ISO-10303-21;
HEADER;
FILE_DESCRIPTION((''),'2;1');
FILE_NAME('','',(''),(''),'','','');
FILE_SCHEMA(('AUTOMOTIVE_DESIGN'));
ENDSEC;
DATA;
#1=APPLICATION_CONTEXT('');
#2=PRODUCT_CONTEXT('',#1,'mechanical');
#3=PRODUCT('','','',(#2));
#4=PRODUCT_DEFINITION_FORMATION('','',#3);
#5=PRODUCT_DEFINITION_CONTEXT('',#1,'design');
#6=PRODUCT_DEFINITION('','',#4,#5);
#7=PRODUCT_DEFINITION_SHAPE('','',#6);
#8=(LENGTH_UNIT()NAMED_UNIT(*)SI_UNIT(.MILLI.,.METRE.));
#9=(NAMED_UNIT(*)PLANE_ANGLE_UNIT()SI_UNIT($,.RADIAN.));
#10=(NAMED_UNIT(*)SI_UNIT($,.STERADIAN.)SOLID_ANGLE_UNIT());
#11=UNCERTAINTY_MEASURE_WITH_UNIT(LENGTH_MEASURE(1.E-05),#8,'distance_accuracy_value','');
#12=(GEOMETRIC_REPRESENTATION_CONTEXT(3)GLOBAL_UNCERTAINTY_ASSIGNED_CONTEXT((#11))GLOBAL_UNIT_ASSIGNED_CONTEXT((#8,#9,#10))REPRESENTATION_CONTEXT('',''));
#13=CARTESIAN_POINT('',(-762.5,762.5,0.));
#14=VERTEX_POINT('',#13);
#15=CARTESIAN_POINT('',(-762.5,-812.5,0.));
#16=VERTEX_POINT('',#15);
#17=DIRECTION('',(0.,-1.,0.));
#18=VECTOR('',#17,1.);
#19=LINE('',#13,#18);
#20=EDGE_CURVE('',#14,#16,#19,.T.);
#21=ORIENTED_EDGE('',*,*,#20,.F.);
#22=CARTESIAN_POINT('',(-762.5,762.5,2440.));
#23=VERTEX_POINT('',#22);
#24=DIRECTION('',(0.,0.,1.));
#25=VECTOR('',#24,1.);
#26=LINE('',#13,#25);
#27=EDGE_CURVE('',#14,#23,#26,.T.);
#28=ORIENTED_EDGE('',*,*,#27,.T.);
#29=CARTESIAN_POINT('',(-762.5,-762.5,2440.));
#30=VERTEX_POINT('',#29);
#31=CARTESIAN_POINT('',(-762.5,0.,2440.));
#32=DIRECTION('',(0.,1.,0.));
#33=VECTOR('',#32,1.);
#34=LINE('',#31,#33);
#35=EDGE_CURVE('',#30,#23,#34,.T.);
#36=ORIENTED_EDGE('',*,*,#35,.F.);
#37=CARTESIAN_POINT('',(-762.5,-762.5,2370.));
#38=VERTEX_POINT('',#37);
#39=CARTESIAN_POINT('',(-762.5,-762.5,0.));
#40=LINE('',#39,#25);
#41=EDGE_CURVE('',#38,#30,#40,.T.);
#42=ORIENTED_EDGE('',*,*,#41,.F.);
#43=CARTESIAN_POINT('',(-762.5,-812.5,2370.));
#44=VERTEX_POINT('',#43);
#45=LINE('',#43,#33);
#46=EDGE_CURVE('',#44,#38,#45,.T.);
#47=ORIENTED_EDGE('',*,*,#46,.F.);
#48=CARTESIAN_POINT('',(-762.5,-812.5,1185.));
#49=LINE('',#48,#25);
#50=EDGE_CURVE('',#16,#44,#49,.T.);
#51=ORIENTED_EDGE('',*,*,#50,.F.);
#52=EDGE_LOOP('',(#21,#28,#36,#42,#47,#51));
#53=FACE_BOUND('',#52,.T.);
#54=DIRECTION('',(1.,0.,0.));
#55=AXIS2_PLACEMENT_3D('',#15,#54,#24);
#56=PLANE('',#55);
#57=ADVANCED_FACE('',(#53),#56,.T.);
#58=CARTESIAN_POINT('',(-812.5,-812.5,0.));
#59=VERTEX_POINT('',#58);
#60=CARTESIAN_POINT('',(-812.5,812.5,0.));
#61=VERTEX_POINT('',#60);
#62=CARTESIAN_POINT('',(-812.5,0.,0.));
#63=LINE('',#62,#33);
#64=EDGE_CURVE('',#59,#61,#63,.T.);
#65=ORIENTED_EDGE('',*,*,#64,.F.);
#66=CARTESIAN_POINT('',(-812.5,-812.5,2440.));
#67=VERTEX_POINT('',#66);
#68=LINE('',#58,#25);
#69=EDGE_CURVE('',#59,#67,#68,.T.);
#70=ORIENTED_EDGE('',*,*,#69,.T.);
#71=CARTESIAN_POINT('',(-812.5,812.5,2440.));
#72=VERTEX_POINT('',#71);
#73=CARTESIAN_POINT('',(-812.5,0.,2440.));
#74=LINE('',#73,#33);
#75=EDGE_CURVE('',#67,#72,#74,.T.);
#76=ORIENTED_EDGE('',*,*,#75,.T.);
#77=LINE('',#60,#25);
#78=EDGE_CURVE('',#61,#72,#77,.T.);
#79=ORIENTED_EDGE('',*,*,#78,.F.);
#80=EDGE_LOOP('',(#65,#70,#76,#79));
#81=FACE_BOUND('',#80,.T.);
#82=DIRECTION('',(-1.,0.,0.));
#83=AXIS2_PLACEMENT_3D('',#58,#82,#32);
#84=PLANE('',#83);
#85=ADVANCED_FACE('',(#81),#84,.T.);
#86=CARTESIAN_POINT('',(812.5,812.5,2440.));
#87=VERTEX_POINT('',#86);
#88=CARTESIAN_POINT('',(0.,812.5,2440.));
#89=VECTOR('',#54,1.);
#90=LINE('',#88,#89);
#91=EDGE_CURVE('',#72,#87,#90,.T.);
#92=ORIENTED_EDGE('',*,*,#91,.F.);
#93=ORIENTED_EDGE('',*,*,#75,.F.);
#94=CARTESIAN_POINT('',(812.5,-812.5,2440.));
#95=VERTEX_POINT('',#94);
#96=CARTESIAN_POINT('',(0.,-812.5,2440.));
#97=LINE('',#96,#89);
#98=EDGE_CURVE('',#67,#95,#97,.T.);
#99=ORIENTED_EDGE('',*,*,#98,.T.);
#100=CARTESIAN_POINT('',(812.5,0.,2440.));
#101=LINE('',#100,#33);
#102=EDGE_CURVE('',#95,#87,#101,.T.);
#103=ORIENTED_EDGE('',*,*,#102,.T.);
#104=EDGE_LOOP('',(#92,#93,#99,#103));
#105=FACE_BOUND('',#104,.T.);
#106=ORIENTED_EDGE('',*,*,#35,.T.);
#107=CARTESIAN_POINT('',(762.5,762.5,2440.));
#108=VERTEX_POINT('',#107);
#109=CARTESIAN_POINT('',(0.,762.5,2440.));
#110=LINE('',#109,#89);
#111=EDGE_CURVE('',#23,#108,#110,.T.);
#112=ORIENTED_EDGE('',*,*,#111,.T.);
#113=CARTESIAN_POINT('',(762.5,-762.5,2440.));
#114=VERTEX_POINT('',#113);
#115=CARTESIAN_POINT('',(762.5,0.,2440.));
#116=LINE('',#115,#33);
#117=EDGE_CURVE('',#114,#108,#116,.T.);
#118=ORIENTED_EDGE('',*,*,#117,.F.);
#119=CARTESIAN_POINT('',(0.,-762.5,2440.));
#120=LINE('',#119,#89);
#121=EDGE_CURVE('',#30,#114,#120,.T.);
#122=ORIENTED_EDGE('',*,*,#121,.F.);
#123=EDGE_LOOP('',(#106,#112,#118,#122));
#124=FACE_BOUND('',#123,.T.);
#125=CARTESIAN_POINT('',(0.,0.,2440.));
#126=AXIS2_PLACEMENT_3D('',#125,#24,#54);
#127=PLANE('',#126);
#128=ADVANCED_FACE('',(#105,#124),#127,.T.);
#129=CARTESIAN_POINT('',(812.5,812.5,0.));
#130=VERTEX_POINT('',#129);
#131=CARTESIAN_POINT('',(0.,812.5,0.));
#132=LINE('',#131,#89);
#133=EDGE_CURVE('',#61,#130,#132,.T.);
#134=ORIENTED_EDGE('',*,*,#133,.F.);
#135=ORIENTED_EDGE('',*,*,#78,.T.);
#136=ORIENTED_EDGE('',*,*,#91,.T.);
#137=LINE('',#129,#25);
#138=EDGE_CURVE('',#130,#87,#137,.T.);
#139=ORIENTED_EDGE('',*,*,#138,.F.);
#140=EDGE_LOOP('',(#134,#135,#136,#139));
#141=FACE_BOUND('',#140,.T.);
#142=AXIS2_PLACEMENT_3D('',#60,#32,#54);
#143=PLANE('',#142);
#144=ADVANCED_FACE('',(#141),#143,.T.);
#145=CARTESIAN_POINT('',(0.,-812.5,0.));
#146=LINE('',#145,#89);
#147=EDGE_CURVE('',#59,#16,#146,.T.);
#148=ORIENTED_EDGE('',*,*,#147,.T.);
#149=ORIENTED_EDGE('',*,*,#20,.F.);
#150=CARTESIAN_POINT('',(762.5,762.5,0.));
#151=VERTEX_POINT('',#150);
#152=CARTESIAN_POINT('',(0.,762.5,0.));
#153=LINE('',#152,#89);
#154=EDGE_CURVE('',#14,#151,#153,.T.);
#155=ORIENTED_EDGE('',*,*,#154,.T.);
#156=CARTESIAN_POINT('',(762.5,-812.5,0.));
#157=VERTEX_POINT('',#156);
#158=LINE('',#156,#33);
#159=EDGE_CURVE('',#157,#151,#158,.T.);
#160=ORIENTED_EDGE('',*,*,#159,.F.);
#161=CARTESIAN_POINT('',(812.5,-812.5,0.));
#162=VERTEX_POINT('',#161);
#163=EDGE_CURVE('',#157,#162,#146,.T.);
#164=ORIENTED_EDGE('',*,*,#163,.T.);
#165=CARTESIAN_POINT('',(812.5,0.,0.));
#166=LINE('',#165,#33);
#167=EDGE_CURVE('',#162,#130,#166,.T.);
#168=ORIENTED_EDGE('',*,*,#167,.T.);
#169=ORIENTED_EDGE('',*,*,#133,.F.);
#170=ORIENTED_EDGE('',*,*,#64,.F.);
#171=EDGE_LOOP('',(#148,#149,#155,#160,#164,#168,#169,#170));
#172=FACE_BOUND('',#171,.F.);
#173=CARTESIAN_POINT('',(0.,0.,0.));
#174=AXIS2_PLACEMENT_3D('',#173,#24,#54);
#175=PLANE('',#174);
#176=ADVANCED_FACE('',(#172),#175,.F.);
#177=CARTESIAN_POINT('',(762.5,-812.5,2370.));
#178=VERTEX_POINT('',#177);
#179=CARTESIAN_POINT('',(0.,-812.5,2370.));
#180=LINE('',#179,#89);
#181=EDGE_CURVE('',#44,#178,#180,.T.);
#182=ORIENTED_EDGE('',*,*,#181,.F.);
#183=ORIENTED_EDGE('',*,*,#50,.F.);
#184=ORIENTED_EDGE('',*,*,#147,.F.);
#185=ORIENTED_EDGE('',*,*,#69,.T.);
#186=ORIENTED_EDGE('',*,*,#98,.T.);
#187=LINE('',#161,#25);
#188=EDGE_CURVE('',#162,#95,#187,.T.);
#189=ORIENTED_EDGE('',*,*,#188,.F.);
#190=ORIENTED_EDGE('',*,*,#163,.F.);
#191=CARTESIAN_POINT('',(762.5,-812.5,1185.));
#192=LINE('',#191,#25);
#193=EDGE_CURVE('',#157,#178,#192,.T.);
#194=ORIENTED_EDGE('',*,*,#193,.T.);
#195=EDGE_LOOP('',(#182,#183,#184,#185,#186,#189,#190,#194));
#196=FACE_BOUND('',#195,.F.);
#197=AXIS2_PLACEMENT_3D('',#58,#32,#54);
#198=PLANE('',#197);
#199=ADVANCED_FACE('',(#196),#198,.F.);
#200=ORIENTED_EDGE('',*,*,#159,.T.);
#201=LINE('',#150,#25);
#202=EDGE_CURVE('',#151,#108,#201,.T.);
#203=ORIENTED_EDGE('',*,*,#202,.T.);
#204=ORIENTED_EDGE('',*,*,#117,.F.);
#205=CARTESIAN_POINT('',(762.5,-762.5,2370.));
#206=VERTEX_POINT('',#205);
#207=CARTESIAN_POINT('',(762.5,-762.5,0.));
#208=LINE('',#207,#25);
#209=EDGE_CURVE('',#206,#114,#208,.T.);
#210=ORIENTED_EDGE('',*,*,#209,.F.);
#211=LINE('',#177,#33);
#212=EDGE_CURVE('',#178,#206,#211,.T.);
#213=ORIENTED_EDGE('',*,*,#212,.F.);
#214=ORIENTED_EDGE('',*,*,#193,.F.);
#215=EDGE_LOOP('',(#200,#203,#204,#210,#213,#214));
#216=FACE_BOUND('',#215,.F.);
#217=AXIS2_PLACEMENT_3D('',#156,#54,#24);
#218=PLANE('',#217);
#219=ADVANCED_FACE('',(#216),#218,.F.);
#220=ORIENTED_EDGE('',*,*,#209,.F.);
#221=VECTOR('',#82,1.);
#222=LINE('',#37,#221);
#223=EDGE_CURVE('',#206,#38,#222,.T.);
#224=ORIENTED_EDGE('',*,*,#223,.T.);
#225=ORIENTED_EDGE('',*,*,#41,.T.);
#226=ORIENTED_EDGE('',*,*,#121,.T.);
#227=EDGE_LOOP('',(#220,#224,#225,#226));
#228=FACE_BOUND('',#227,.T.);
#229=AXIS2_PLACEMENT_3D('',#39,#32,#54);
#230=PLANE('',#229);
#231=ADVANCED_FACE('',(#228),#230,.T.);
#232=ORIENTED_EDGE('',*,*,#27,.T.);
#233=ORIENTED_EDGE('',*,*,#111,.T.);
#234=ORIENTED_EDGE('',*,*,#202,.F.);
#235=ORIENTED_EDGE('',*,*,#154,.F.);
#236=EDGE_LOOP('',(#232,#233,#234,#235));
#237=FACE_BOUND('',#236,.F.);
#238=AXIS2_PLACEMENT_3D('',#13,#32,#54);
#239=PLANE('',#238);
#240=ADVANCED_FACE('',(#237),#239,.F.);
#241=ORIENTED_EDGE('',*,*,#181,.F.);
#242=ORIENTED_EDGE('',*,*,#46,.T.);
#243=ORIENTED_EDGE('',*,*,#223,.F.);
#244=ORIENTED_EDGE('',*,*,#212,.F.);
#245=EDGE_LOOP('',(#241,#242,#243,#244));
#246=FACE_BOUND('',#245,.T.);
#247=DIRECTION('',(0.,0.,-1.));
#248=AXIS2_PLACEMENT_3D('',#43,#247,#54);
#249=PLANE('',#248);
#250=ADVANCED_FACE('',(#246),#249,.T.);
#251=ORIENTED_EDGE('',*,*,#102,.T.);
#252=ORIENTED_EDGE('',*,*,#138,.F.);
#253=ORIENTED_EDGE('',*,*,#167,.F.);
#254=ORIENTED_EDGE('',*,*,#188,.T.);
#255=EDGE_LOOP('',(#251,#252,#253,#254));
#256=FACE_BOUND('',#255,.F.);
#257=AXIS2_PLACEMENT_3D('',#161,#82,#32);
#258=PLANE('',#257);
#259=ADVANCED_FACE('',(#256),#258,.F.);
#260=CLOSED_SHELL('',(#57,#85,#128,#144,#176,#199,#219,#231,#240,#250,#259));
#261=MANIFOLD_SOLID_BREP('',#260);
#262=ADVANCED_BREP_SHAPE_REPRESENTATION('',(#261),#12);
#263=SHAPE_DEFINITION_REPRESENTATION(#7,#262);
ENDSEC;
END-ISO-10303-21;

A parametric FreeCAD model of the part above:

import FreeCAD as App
import Part
import Sketcher


def add_polygon(sketch, points):
    """Adds a closed chain of lines whose ends are joined by coincident constraints."""
    first, n = sketch.GeometryCount, len(points)
    for a, b in zip(points, points[1:] + points[:1]):
        sketch.addGeometry(Part.LineSegment(App.Vector(*a, 0), App.Vector(*b, 0)), False)
    for i in range(n):
        sketch.addConstraint(Sketcher.Constraint("Coincident", first + i, 2, first + (i + 1) % n, 1))

doc = App.newDocument("Part")
body = doc.addObject("PartDesign::Body", "Body")

# Sketch on XY plane
sketch1 = body.newObject("Sketcher::SketchObject", "Sketch")
sketch1.AttachmentSupport = (doc.getObject("XY_Plane"), [""])
sketch1.MapMode = "FlatFace"
add_polygon(sketch1, [(-812, 812), (-812, -812), (812, -812), (812, 812)])  # lines 0-3
add_polygon(sketch1, [(762, -762), (-762, -762), (-762, 762), (762, 762)])  # lines 4-7
sketch1.addConstraint(Sketcher.Constraint("Vertical", 0))
sketch1.addConstraint(Sketcher.Constraint("Horizontal", 1))
sketch1.addConstraint(Sketcher.Constraint("Vertical", 2))
sketch1.addConstraint(Sketcher.Constraint("Horizontal", 3))
sketch1.addConstraint(Sketcher.Constraint("Horizontal", 4))
sketch1.addConstraint(Sketcher.Constraint("Vertical", 5))
sketch1.addConstraint(Sketcher.Constraint("Horizontal", 6))
sketch1.addConstraint(Sketcher.Constraint("Vertical", 7))
sketch1.addConstraint(Sketcher.Constraint("Symmetric", 0, 2, 2, 2, -1, 1))
sketch1.addConstraint(Sketcher.Constraint("Symmetric", 4, 2, 6, 2, -1, 1))
sketch1.addConstraint(Sketcher.Constraint("Equal", 3, 0))
sketch1.addConstraint(Sketcher.Constraint("Equal", 6, 5))
sketch1.addConstraint(Sketcher.Constraint("DistanceX", 1, 1, 1, 2, 1625.0))
sketch1.addConstraint(Sketcher.Constraint("DistanceX", 4, 2, 4, 1, 1525.0))
pad1 = body.newObject("PartDesign::Pad", "Pad")
pad1.Profile = sketch1
pad1.Length = 2440

# Sketch on XZ plane
sketch2 = body.newObject("Sketcher::SketchObject", "Sketch001")
sketch2.AttachmentSupport = (doc.getObject("XZ_Plane"), [""])
sketch2.MapMode = "FlatFace"
sketch2.AttachmentOffset = App.Placement(App.Vector(0, 0, 812.5), App.Rotation())
add_polygon(sketch2, [(-762, 2370), (-762, 0), (762, 0), (762, 2370)])  # lines 0-3
sketch2.addConstraint(Sketcher.Constraint("Vertical", 0))
sketch2.addConstraint(Sketcher.Constraint("Horizontal", 1))
sketch2.addConstraint(Sketcher.Constraint("Vertical", 2))
sketch2.addConstraint(Sketcher.Constraint("Horizontal", 3))
sketch2.addConstraint(Sketcher.Constraint("Symmetric", 0, 2, 1, 2, -1, 1))
sketch2.addConstraint(Sketcher.Constraint("DistanceX", 1, 1, 1, 2, 1525.0))
sketch2.addConstraint(Sketcher.Constraint("DistanceY", 0, 2, 0, 1, 2370.0))
pocket1 = body.newObject("PartDesign::Pocket", "Pocket")
pocket1.Profile = sketch2
pocket1.Length = 164

doc.recompute()
